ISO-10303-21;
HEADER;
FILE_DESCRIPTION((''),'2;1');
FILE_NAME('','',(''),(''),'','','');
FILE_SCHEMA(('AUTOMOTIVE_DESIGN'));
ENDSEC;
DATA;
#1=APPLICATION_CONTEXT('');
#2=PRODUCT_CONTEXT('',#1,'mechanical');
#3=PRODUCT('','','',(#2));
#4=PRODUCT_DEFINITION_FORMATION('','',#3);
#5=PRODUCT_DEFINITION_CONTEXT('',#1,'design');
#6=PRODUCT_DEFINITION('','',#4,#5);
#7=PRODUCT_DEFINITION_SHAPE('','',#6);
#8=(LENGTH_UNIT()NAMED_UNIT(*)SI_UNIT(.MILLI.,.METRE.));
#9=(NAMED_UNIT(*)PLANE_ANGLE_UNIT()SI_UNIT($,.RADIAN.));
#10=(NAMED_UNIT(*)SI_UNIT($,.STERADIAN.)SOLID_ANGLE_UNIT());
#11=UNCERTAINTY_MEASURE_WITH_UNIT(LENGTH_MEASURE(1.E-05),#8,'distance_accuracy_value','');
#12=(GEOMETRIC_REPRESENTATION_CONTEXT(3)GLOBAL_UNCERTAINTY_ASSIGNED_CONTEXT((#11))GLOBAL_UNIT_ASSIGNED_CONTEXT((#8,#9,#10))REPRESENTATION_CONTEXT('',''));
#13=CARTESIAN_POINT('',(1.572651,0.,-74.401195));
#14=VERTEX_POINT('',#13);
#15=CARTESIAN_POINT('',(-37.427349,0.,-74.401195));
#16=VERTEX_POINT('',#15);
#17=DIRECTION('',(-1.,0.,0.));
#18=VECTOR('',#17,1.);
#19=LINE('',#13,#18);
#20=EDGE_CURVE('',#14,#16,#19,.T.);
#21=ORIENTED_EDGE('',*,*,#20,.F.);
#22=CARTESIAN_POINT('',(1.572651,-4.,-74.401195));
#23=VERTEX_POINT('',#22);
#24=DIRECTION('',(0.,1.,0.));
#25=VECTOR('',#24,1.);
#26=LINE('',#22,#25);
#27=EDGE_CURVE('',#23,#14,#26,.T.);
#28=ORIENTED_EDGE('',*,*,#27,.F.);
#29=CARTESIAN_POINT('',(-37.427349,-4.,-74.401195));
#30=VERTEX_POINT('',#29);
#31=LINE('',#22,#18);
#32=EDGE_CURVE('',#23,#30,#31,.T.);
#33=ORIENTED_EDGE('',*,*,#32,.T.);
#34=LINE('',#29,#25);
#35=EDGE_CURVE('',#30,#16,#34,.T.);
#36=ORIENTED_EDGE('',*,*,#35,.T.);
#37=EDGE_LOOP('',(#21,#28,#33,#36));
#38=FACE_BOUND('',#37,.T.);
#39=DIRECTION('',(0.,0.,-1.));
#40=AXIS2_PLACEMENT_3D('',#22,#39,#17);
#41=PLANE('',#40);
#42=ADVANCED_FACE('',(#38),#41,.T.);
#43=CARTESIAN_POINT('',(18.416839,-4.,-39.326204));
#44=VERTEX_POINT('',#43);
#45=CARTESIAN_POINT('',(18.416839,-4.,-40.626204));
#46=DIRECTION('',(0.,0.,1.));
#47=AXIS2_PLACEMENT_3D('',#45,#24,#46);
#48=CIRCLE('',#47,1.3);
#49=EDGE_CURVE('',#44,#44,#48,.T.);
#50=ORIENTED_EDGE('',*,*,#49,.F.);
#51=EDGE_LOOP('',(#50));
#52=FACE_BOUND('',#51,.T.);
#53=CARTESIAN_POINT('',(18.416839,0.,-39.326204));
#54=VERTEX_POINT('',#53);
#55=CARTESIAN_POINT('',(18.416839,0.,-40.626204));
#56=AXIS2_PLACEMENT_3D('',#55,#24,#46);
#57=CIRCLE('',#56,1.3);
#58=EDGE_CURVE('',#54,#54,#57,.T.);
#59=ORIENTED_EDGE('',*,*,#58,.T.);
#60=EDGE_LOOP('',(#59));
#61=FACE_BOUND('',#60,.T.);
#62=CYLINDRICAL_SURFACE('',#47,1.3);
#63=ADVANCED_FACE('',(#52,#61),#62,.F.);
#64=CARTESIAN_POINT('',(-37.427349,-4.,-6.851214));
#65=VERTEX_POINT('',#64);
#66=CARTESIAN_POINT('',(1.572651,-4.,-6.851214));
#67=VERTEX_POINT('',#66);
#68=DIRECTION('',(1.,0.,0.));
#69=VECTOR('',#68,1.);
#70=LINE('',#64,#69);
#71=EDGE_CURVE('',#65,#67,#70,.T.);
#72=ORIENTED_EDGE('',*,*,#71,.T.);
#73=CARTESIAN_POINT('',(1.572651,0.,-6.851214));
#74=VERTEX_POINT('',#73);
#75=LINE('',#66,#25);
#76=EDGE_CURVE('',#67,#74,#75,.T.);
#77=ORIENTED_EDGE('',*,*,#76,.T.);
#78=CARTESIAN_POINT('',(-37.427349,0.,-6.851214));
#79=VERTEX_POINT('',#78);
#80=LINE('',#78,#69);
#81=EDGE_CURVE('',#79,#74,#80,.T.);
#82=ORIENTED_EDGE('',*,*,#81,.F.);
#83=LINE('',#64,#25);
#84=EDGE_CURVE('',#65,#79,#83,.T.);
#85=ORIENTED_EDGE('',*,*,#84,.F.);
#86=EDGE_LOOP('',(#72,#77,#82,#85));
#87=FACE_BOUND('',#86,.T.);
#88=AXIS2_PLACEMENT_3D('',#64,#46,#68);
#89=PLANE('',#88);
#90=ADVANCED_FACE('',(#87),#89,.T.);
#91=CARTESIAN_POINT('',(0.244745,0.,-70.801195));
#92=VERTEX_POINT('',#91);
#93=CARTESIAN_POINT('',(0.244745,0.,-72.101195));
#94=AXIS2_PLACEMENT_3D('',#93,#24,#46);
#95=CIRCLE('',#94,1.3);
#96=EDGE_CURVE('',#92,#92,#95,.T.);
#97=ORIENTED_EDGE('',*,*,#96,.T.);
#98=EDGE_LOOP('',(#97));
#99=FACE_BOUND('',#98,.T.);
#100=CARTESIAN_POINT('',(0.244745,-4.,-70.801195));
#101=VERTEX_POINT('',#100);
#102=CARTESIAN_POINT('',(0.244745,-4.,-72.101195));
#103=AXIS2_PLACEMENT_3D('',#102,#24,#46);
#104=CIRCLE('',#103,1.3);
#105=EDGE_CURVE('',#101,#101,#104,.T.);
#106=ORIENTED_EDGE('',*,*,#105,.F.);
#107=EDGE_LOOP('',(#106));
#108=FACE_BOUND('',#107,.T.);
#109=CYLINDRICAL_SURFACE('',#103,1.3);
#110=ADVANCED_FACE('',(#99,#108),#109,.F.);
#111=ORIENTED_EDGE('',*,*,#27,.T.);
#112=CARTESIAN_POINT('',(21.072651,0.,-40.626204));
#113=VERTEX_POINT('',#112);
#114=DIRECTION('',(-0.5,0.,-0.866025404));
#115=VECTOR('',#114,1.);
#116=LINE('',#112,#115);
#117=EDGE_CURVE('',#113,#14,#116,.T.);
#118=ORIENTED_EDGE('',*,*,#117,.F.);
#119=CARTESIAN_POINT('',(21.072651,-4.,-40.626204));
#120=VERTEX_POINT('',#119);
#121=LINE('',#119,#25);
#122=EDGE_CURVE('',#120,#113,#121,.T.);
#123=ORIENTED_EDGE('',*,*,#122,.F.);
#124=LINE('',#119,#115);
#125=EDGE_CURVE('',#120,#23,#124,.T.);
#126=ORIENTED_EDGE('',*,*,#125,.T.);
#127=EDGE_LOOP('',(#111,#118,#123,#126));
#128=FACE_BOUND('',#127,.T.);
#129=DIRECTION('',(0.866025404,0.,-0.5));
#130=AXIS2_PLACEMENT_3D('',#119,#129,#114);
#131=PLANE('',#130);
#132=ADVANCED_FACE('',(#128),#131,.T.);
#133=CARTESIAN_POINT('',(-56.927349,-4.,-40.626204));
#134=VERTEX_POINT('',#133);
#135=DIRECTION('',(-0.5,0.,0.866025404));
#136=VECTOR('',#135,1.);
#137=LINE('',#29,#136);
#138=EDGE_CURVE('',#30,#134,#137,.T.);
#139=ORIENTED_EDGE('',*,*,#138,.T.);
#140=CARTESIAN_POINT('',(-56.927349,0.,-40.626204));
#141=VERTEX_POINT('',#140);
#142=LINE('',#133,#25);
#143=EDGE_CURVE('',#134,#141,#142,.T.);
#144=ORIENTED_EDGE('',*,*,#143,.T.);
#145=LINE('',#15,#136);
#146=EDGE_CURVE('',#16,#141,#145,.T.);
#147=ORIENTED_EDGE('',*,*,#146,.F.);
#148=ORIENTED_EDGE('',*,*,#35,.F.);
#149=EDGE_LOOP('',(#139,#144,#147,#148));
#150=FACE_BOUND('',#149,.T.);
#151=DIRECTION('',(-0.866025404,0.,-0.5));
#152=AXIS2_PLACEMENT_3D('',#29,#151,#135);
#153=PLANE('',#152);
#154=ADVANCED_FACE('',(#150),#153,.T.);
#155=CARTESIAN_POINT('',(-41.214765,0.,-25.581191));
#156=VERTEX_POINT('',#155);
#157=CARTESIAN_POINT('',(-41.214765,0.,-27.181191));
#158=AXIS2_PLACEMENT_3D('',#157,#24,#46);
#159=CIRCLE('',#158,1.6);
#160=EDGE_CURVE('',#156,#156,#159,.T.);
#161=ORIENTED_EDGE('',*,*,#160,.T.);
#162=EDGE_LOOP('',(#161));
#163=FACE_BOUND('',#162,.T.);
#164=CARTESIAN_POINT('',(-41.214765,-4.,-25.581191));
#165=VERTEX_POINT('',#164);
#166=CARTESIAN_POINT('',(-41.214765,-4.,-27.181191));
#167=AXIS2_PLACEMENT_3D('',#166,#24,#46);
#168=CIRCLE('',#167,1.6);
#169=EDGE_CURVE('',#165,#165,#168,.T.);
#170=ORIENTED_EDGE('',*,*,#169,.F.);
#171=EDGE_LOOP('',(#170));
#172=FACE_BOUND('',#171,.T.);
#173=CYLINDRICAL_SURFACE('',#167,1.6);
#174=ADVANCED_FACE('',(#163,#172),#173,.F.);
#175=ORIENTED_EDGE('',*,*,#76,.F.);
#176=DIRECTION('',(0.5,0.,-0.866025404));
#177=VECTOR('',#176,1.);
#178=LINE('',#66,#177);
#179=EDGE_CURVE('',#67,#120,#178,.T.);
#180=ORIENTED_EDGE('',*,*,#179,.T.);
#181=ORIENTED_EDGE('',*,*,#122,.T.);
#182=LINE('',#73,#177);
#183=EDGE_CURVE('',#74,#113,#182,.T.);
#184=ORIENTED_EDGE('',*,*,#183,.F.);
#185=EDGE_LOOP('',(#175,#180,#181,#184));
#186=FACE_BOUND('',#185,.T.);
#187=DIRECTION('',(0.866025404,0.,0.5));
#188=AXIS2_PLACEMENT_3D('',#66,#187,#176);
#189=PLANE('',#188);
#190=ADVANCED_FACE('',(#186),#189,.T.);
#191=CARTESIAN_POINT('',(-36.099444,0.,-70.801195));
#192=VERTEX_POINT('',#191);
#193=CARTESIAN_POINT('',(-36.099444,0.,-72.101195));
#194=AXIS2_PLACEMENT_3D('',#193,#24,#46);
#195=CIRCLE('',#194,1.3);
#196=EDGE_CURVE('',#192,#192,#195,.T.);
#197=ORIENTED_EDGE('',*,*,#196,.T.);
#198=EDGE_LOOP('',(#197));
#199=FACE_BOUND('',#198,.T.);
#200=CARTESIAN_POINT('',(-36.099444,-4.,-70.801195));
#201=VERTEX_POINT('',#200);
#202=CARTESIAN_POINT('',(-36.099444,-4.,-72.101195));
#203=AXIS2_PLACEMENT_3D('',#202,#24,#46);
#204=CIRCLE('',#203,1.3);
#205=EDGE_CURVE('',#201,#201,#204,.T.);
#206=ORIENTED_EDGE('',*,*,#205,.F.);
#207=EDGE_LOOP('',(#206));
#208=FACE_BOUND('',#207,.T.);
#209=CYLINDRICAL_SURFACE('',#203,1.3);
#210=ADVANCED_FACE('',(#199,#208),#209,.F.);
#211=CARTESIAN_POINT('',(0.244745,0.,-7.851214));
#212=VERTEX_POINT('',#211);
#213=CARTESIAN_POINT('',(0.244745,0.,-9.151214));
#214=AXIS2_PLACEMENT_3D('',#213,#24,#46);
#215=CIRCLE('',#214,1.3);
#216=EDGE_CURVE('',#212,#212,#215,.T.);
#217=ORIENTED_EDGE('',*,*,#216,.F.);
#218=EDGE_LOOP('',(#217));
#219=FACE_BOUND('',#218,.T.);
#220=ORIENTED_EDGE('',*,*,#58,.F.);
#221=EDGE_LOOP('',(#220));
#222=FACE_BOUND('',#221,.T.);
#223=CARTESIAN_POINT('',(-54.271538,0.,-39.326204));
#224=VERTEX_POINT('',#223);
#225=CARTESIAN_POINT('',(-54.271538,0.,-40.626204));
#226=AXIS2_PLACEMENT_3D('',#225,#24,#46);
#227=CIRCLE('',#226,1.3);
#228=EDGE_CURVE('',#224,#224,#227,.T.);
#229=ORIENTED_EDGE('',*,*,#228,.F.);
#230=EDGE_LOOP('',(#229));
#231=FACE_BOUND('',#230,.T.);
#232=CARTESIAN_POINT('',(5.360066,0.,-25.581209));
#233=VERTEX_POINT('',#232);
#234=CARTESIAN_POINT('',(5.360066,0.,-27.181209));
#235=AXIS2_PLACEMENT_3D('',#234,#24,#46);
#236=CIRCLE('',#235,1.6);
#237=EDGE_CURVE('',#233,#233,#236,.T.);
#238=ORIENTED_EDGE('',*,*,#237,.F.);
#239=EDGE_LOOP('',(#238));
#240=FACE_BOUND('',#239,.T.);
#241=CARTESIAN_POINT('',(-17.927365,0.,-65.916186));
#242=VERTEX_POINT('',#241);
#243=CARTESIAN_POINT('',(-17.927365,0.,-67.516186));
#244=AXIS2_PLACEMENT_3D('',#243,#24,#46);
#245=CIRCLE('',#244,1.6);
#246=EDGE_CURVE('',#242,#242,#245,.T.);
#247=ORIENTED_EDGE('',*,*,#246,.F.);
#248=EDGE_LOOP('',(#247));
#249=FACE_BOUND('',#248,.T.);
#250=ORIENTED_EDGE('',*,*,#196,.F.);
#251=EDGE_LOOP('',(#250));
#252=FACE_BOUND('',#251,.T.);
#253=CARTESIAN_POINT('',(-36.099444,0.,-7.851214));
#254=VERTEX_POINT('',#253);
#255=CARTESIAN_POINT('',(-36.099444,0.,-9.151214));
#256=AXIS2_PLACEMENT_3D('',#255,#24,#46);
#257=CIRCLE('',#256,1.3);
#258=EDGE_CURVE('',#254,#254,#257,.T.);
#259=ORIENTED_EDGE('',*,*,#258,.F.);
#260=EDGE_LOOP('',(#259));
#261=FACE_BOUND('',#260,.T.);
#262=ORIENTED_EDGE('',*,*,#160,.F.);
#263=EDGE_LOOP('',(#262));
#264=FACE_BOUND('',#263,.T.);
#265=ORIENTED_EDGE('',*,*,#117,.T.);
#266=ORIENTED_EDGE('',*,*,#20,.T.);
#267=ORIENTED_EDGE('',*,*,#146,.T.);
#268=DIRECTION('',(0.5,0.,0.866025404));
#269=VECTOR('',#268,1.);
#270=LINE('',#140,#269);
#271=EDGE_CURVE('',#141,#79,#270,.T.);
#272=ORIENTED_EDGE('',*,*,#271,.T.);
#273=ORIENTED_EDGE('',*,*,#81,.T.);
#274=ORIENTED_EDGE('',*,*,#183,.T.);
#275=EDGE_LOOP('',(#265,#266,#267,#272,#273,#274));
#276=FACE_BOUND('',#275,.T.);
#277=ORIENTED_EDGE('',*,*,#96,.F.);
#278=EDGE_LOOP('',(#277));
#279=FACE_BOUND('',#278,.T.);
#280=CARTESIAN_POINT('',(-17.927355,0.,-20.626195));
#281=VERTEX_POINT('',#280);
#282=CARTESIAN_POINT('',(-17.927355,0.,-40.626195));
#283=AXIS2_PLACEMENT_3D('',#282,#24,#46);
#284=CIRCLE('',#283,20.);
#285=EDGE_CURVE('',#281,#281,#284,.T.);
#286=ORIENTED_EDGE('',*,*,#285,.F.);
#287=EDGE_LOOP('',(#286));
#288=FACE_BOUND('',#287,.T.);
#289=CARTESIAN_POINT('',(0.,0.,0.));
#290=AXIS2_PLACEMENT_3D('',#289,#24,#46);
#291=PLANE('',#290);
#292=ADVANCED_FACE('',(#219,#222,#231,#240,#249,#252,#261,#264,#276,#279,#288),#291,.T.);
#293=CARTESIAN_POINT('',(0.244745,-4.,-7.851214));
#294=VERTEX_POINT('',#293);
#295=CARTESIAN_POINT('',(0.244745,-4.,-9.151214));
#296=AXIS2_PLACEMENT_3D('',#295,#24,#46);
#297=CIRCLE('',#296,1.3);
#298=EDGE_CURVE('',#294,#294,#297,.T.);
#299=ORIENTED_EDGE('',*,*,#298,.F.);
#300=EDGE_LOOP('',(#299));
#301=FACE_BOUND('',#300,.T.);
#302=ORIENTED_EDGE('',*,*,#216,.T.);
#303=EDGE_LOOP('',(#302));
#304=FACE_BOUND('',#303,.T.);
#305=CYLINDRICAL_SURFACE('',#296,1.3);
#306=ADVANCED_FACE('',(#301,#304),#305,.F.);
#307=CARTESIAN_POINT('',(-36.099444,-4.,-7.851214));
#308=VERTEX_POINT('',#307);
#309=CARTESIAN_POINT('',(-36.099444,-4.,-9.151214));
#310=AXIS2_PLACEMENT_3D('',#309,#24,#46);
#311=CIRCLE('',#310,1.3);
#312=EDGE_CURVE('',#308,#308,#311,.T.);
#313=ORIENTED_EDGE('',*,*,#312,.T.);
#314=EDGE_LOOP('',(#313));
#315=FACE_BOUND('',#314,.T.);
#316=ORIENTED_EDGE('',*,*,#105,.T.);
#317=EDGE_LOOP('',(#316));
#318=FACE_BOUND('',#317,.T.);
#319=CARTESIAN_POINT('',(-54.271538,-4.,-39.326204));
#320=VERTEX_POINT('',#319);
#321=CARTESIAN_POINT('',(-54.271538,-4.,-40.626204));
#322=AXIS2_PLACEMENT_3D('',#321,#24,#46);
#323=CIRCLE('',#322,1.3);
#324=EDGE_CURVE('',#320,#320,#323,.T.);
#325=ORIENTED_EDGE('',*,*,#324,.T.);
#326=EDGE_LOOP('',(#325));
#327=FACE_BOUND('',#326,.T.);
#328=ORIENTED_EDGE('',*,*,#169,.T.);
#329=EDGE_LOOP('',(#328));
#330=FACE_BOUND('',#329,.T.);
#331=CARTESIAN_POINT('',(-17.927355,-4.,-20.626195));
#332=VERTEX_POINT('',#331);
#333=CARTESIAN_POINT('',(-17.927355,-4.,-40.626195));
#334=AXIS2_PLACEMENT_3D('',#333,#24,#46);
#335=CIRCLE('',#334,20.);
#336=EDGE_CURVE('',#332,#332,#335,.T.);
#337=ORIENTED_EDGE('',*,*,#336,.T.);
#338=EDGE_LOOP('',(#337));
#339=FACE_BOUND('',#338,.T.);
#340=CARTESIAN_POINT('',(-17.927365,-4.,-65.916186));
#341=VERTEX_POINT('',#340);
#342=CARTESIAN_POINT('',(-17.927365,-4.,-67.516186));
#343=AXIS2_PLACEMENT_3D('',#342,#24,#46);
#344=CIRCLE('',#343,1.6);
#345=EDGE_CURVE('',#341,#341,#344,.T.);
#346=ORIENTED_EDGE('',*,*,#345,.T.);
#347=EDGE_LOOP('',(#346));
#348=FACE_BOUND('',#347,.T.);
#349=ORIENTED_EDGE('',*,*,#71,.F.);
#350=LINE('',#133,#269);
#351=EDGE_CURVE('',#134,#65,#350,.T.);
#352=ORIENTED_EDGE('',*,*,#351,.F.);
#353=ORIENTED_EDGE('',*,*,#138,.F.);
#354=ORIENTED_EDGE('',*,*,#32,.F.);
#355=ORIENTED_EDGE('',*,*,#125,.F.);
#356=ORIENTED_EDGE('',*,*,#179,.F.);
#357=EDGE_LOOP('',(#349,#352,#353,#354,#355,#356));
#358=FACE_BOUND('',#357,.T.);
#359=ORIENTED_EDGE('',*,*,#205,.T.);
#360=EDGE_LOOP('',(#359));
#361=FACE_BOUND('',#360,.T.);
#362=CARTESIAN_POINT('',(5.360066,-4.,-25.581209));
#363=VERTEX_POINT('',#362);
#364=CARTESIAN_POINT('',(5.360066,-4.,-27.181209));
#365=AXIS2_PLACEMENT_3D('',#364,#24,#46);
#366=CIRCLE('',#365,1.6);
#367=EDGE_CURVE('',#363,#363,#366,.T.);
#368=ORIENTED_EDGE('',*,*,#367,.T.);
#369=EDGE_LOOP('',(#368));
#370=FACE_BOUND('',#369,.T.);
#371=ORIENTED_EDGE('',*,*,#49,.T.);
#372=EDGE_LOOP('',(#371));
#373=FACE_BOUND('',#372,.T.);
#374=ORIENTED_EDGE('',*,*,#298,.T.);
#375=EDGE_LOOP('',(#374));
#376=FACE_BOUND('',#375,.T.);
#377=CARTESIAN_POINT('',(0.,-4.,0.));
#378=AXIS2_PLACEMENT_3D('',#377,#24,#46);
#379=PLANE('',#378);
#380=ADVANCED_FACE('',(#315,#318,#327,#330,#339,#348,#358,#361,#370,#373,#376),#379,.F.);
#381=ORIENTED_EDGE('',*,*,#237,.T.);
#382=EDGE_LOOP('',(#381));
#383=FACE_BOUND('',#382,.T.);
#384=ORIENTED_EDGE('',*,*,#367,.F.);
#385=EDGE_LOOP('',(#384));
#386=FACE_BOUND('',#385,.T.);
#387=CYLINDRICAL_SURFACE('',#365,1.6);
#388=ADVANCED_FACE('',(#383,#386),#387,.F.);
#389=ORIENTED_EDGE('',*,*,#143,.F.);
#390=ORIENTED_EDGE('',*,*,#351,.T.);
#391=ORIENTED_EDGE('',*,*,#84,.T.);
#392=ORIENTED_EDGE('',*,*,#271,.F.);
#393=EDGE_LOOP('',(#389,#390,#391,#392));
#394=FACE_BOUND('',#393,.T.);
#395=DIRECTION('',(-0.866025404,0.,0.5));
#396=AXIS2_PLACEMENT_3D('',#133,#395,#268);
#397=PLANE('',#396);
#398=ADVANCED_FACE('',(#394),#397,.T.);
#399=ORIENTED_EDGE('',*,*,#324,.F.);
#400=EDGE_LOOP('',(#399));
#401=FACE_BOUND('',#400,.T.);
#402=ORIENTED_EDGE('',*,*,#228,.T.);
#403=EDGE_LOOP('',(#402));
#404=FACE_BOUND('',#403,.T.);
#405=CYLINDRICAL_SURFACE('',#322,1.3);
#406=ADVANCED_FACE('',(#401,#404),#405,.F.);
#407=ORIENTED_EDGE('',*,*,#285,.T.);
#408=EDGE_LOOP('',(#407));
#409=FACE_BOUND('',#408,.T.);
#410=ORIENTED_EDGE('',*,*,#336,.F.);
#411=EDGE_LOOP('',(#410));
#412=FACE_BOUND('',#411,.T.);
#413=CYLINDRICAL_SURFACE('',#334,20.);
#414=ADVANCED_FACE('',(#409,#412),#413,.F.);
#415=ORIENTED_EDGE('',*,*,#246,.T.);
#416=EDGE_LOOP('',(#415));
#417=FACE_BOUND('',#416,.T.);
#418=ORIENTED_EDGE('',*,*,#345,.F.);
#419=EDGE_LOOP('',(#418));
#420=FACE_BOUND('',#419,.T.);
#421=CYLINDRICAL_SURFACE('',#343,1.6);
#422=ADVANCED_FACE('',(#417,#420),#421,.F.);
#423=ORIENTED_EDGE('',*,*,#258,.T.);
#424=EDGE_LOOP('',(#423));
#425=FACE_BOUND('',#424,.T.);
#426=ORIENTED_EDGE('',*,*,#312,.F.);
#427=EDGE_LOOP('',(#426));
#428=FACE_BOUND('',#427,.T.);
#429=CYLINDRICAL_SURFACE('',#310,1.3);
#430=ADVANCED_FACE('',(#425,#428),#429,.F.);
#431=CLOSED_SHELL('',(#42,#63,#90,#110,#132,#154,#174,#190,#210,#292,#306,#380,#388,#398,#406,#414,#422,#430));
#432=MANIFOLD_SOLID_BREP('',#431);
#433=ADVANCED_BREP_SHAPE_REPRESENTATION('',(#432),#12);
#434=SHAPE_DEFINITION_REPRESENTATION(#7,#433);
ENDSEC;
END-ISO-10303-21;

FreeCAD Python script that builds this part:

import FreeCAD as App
import Part
import Sketcher
Q = App.Units.Quantity

doc = App.newDocument("Part")
params = doc.addObject("Spreadsheet::Sheet", "Params")
for row, (alias, value) in enumerate([
    ("sketch1_width", "39 mm"),
    ("sketch1_length", "39 mm"),
    ("pad1_length", "4 mm"),
    ("sketch2_diameter", "40 mm"),
    ("pocket1_length", "4 mm"),
    ("sketch3_diameter", "3.2 mm"),
    ("sketch3_diameter2", "2.6 mm"),
    ("pocket2_length", "4 mm"),
], start=1):
    params.set(f"A{row}", alias)
    params.set(f"B{row}", "=" + value)
    params.setAlias(f"B{row}", alias)

body = doc.addObject("PartDesign::Body", "Body")

# Sketch on XZ plane
sketch1 = body.newObject("Sketcher::SketchObject", "Sketch")
sketch1.AttachmentSupport = (doc.getObject("XZ_Plane"), [""])
sketch1.MapMode = "FlatFace"
sketch1.addGeometry([
    Part.LineSegment(App.Vector(1.572651, -74.401195, 0), App.Vector(-37.427349, -74.401195, 0)),  # 0
    Part.LineSegment(App.Vector(-37.427349, -74.401195, 0), App.Vector(-56.927349, -40.626204, 0)),  # 1
    Part.LineSegment(App.Vector(-56.927349, -40.626204, 0), App.Vector(-37.427349, -6.851214, 0)),  # 2
    Part.LineSegment(App.Vector(-37.427349, -6.851214, 0), App.Vector(1.572651, -6.851214, 0)),  # 3
    Part.LineSegment(App.Vector(1.572651, -6.851214, 0), App.Vector(21.072651, -40.626204, 0)),  # 4
    Part.LineSegment(App.Vector(21.072651, -40.626204, 0), App.Vector(1.572651, -74.401195, 0)),  # 5
], False)
sketch1.addConstraint([
    Sketcher.Constraint("Coincident", 0, 2, 1, 1),
    Sketcher.Constraint("Coincident", 1, 2, 2, 1),
    Sketcher.Constraint("Coincident", 2, 2, 3, 1),
    Sketcher.Constraint("Coincident", 3, 2, 4, 1),
    Sketcher.Constraint("Coincident", 4, 2, 5, 1),
    Sketcher.Constraint("Coincident", 5, 2, 0, 1),
    Sketcher.Constraint("Horizontal", 0),
    Sketcher.Constraint("Horizontal", 3),
    Sketcher.Constraint("Parallel", 1, 4),
    Sketcher.Constraint("Parallel", 2, 5),
    Sketcher.Constraint("Horizontal", 1, 2, 4, 2),
    Sketcher.Constraint("Vertical", 0, 2, 2, 2),
    Sketcher.Constraint("Vertical", 3, 2, 5, 2),
    Sketcher.Constraint("DistanceX", 0, 2, 0, 1, 39.0),
    Sketcher.Constraint("Angle", 1, Q("120 deg")),
    Sketcher.Constraint("Distance", 1, 39.0),
    Sketcher.Constraint("DistanceX", 0, 2, -1, 1, 37.427349),
    Sketcher.Constraint("DistanceY", 0, 2, -1, 1, 74.401195),
])
sketch1.setExpression("Constraints[13]", "Params.sketch1_width")
sketch1.setExpression("Constraints[15]", "Params.sketch1_length")
pad1 = body.newObject("PartDesign::Pad", "Pad")
pad1.Profile = sketch1
pad1.setExpression("Length", "Params.pad1_length")

# Sketch on XZ plane
sketch2 = body.newObject("Sketcher::SketchObject", "Sketch001")
sketch2.AttachmentSupport = (doc.getObject("XZ_Plane"), [""])
sketch2.MapMode = "FlatFace"
sketch2.addGeometry(Part.Circle(App.Vector(-17.927355, -40.626195, 0), App.Vector(0, 0, 1), 20), False)
sketch2.addConstraint([
    Sketcher.Constraint("Diameter", 0, 40.0),
    Sketcher.Constraint("DistanceX", 0, 3, -1, 1, 17.927355),
    Sketcher.Constraint("DistanceY", 0, 3, -1, 1, 40.626195),
])
sketch2.setExpression("Constraints[0]", "Params.sketch2_diameter")
pocket1 = body.newObject("PartDesign::Pocket", "Pocket")
pocket1.Profile = sketch2
pocket1.setExpression("Length", "Params.pocket1_length")
pocket1.Reversed = True

# Sketch on XZ plane
sketch3 = body.newObject("Sketcher::SketchObject", "Sketch002")
sketch3.AttachmentSupport = (doc.getObject("XZ_Plane"), [""])
sketch3.MapMode = "FlatFace"
sketch3.addGeometry([
    Part.Circle(App.Vector(5.360066, -27.181209, 0), App.Vector(0, 0, 1), 1.6),  # 0
    Part.Circle(App.Vector(0.244745, -9.151214, 0), App.Vector(0, 0, 1), 1.3),  # 1
    Part.Circle(App.Vector(-36.099444, -9.151214, 0), App.Vector(0, 0, 1), 1.3),  # 2
    Part.Circle(App.Vector(-41.214765, -27.181191, 0), App.Vector(0, 0, 1), 1.6),  # 3
    Part.Circle(App.Vector(-17.927365, -67.516186, 0), App.Vector(0, 0, 1), 1.6),  # 4
    Part.Circle(App.Vector(18.416839, -40.626204, 0), App.Vector(0, 0, 1), 1.3),  # 5
    Part.Circle(App.Vector(0.244745, -72.101195, 0), App.Vector(0, 0, 1), 1.3),  # 6
    Part.Circle(App.Vector(-54.271538, -40.626204, 0), App.Vector(0, 0, 1), 1.3),  # 7
    Part.Circle(App.Vector(-36.099444, -72.101195, 0), App.Vector(0, 0, 1), 1.3),  # 8
], False)
sketch3.addConstraint([
    Sketcher.Constraint("Equal", 1, 2),
    Sketcher.Constraint("Equal", 0, 3),
    Sketcher.Constraint("Equal", 3, 4),
    Sketcher.Constraint("Equal", 2, 5),
    Sketcher.Constraint("Equal", 5, 6),
    Sketcher.Constraint("Equal", 6, 7),
    Sketcher.Constraint("Equal", 7, 8),
    Sketcher.Constraint("Horizontal", 1, 3, 2, 3),
    Sketcher.Constraint("Horizontal", 5, 3, 7, 3),
    Sketcher.Constraint("Horizontal", 6, 3, 8, 3),
    Sketcher.Constraint("Vertical", 1, 3, 6, 3),
    Sketcher.Constraint("Vertical", 2, 3, 8, 3),
    Sketcher.Constraint("Diameter", 0, 3.2),
    Sketcher.Constraint("Diameter", 1, 2.6),
    Sketcher.Constraint("DistanceX", 3, 3, 4, 3, 23.287399),
    Sketcher.Constraint("DistanceY", 0, 3, -1, 1, 27.181209),
    Sketcher.Constraint("DistanceY", 3, 3, -1, 1, 27.181191),
    Sketcher.Constraint("DistanceX", -1, 1, 5, 3, 18.416839),
    Sketcher.Constraint("DistanceX", 7, 3, -1, 1, 54.271538),
    Sketcher.Constraint("DistanceX", 1, 3, 0, 3, 5.115321),
    Sketcher.Constraint("DistanceX", 2, 3, 1, 3, 36.344189),
    Sketcher.Constraint("DistanceX", 3, 3, 2, 3, 5.115321),
    Sketcher.Constraint("DistanceY", 5, 3, 1, 3, 31.474991),
    Sketcher.Constraint("DistanceY", 4, 3, 5, 3, 26.889981),
    Sketcher.Constraint("DistanceY", 6, 3, 4, 3, 4.585009),
    Sketcher.Constraint("DistanceX", -1, 1, 0, 3, 5.360066),
    Sketcher.Constraint("DistanceY", 1, 3, -1, 1, 9.151214),
])
sketch3.setExpression("Constraints[12]", "Params.sketch3_diameter")
sketch3.setExpression("Constraints[13]", "Params.sketch3_diameter2")
pocket2 = body.newObject("PartDesign::Pocket", "Pocket001")
pocket2.Profile = sketch3
pocket2.setExpression("Length", "Params.pocket2_length")
pocket2.Reversed = True

doc.recompute()
